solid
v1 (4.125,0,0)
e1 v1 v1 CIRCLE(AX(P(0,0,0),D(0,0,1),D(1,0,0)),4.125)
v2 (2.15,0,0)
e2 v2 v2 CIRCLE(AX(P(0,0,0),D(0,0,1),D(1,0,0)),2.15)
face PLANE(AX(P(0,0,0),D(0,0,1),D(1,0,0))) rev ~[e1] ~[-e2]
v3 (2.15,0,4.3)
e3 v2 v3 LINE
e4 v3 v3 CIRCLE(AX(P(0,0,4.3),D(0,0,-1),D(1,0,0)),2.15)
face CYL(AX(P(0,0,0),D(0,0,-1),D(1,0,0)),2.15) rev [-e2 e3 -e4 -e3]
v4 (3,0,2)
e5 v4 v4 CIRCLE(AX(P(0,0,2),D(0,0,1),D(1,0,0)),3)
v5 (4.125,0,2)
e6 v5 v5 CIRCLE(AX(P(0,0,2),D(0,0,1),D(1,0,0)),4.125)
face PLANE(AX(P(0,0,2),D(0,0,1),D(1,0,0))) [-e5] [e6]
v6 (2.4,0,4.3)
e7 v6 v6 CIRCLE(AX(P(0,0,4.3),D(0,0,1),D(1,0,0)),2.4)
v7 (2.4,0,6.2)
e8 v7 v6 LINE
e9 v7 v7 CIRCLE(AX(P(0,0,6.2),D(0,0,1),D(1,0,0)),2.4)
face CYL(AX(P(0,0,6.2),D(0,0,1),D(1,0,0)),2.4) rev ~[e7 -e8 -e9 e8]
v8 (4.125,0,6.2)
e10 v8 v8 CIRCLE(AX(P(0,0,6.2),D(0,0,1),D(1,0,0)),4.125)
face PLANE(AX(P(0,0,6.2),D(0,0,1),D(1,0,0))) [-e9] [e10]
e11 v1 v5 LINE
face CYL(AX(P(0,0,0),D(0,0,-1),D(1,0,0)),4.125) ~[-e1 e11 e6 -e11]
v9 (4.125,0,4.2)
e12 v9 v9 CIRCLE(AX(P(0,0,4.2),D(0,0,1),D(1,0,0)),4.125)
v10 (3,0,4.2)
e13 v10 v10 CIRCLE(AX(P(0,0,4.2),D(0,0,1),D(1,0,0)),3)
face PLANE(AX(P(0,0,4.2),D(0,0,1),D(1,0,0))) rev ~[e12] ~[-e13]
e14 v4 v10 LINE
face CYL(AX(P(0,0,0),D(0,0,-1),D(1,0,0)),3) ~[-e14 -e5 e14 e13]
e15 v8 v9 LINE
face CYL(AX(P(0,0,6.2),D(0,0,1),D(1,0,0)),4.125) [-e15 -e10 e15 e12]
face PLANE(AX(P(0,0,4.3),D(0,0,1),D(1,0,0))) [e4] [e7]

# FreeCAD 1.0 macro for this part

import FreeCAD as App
import Part
import Sketcher

doc = App.newDocument("Part")
params = doc.addObject("Spreadsheet::Sheet", "Params")
for row, (alias, value) in enumerate([
    ("sketch1_diameter", "6 mm"),
    ("sketch1_diameter2", "8.25 mm"),
    ("pad1_length", "2 mm"),
    ("sketch2_diameter", "6 mm"),
    ("sketch2_diameter2", "4.3 mm"),
    ("pad2_length", "6.2 mm"),
    ("sketch3_diameter", "6 mm"),
    ("sketch3_diameter2", "8.25 mm"),
    ("pad3_length", "2 mm"),
    ("sketch4_diameter", "4.8 mm"),
    ("pocket1_length", "1.9 mm"),
], start=1):
    params.set(f"A{row}", alias)
    params.set(f"B{row}", "=" + value)
    params.setAlias(f"B{row}", alias)

body = doc.addObject("PartDesign::Body", "Body")

sketch1 = doc.addObject("Sketcher::SketchObject", "Sketch")
body.addObject(sketch1)
sketch1.AttachmentSupport = (doc.XY_Plane, [""])
sketch1.MapMode = "FlatFace"
sketch1.addGeometry([
    Part.Circle(App.Vector(0, 0, 0), App.Vector(0, 0, 1), 4.1),
    Part.Circle(App.Vector(0, 0, 0), App.Vector(0, 0, 1), 3),
], False)
sketch1.addConstraint([
    Sketcher.Constraint("Coincident", 0, 3, -1, 1),
    Sketcher.Constraint("Coincident", 1, 3, -1, 1),
    Sketcher.Constraint("Diameter", 1, 6.0),
    Sketcher.Constraint("Diameter", 0, 8.25),
])
sketch1.setExpression("Constraints[2]", "Params.sketch1_diameter")
sketch1.setExpression("Constraints[3]", "Params.sketch1_diameter2")
pad1 = doc.addObject("PartDesign::Pad", "Pad")
body.addObject(pad1)
pad1.Profile = sketch1
pad1.setExpression("Length", "Params.pad1_length")

sketch2 = doc.addObject("Sketcher::SketchObject", "Sketch001")
body.addObject(sketch2)
sketch2.AttachmentSupport = (doc.XY_Plane, [""])
sketch2.MapMode = "FlatFace"
sketch2.addGeometry([
    Part.Circle(App.Vector(0, 0, 0), App.Vector(0, 0, 1), 3),
    Part.Circle(App.Vector(0, 0, 0), App.Vector(0, 0, 1), 2.1),
], False)
sketch2.addConstraint([
    Sketcher.Constraint("Coincident", 0, 3, -1, 1),
    Sketcher.Constraint("Coincident", 1, 3, -1, 1),
    Sketcher.Constraint("Diameter", 0, 6.0),
    Sketcher.Constraint("Diameter", 1, 4.3),
])
sketch2.setExpression("Constraints[2]", "Params.sketch2_diameter")
sketch2.setExpression("Constraints[3]", "Params.sketch2_diameter2")
pad2 = doc.addObject("PartDesign::Pad", "Pad001")
body.addObject(pad2)
pad2.Profile = sketch2
pad2.setExpression("Length", "Params.pad2_length")

sketch3 = doc.addObject("Sketcher::SketchObject", "Sketch002")
body.addObject(sketch3)
sketch3.AttachmentSupport = (doc.XY_Plane, [""])
sketch3.MapMode = "FlatFace"
sketch3.AttachmentOffset = App.Placement(App.Vector(0, 0, 6.2), App.Rotation())
sketch3.addGeometry([
    Part.Circle(App.Vector(0, 0, 0), App.Vector(0, 0, 1), 4.1),
    Part.Circle(App.Vector(0, 0, 0), App.Vector(0, 0, 1), 3),
], False)
sketch3.addConstraint([
    Sketcher.Constraint("Coincident", 0, 3, -1, 1),
    Sketcher.Constraint("Coincident", 1, 3, -1, 1),
    Sketcher.Constraint("Diameter", 1, 6.0),
    Sketcher.Constraint("Diameter", 0, 8.25),
])
sketch3.setExpression("Constraints[2]", "Params.sketch3_diameter")
sketch3.setExpression("Constraints[3]", "Params.sketch3_diameter2")
pad3 = doc.addObject("PartDesign::Pad", "Pad002")
body.addObject(pad3)
pad3.Profile = sketch3
pad3.setExpression("Length", "Params.pad3_length")
pad3.Reversed = True

sketch4 = doc.addObject("Sketcher::SketchObject", "Sketch003")
body.addObject(sketch4)
sketch4.AttachmentSupport = (doc.XY_Plane, [""])
sketch4.MapMode = "FlatFace"
sketch4.AttachmentOffset = App.Placement(App.Vector(0, 0, 6.2), App.Rotation())
sketch4.addGeometry(Part.Circle(App.Vector(0, 0, 0), App.Vector(0, 0, 1), 2.4), False)
sketch4.addConstraint([
    Sketcher.Constraint("Coincident", 0, 3, -1, 1),
    Sketcher.Constraint("Diameter", 0, 4.8),
])
sketch4.setExpression("Constraints[1]", "Params.sketch4_diameter")
pocket1 = doc.addObject("PartDesign::Pocket", "Pocket")
body.addObject(pocket1)
pocket1.Profile = sketch4
pocket1.setExpression("Length", "Params.pocket1_length")

doc.recompute()
